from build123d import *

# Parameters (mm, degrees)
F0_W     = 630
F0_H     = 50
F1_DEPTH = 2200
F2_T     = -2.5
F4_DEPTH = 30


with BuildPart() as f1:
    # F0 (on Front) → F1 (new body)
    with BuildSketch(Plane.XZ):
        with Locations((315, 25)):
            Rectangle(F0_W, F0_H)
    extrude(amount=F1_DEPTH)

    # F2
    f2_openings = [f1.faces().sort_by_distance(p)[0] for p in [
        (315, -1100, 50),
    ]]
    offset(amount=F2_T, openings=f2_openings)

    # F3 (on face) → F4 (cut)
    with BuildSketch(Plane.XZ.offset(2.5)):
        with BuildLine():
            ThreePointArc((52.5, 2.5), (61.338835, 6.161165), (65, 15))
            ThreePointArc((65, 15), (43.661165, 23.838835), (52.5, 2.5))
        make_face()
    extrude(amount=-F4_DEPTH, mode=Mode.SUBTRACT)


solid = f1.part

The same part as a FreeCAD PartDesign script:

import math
import FreeCAD as App
import Part
import Sketcher
Q = App.Units.Quantity


def faces_at(feature, points):
    """Names of the faces that lie closest to the given points."""
    faces = feature.Shape.Faces
    near = lambda p: min(range(len(faces)), key=lambda i: faces[i].distToShape(Part.Vertex(*p))[0])
    return sorted({f"Face{near(p) + 1}" for p in points})

doc = App.newDocument("Part")
body = doc.addObject("PartDesign::Body", "Body")

sketch1 = doc.addObject("Sketcher::SketchObject", "Sketch")
body.addObject(sketch1)
sketch1.AttachmentSupport = (doc.XZ_Plane, [""])
sketch1.MapMode = "FlatFace"
sketch1.addGeometry([
    Part.LineSegment(App.Vector(0, 50, 0), App.Vector(0, 0, 0)),
    Part.LineSegment(App.Vector(0, 0, 0), App.Vector(630, 0, 0)),
    Part.LineSegment(App.Vector(630, 0, 0), App.Vector(630, 50, 0)),
    Part.LineSegment(App.Vector(630, 50, 0), App.Vector(0, 50, 0)),
], False)
sketch1.addConstraint([
    Sketcher.Constraint("Coincident", 0, 2, 1, 1),
    Sketcher.Constraint("Coincident", 1, 2, 2, 1),
    Sketcher.Constraint("Coincident", 2, 2, 3, 1),
    Sketcher.Constraint("Coincident", 3, 2, 0, 1),
    Sketcher.Constraint("Vertical", 0),
    Sketcher.Constraint("Horizontal", 1),
    Sketcher.Constraint("Vertical", 2),
    Sketcher.Constraint("Horizontal", 3),
    Sketcher.Constraint("Coincident", 0, 2, -1, 1),
    Sketcher.Constraint("DistanceX", 1, 1, 1, 2, Q("630 mm")),
    Sketcher.Constraint("DistanceY", 0, 2, 0, 1, Q("50 mm")),
])
pad1 = doc.addObject("PartDesign::Pad", "Pad")
body.addObject(pad1)
pad1.Profile = sketch1
pad1.Length = 2200
doc.recompute()

thickness = doc.addObject("PartDesign::Thickness", "Thickness")
body.addObject(thickness)
thickness.Base = (pad1, faces_at(pad1, [(315, -1100, 50)]))
thickness.Value = 2.5
thickness.Reversed = True
thickness.Join = "Arc"

sketch2 = doc.addObject("Sketcher::SketchObject", "Sketch001")
body.addObject(sketch2)
sketch2.AttachmentSupport = (doc.XZ_Plane, [""])
sketch2.MapMode = "FlatFace"
sketch2.AttachmentOffset = App.Placement(App.Vector(0, 0, 2.5), App.Rotation())
sketch2.addGeometry([
    Part.ArcOfCircle(Part.Circle(App.Vector(52.500001, 14.999999, 0), App.Vector(0, 0, 1), 12.499999), math.radians(-90.000004), math.radians(0.000004)),
    Part.ArcOfCircle(Part.Circle(App.Vector(52.5, 15, 0), App.Vector(0, 0, 1), 12.5), math.radians(-0.000001), math.radians(270.000001)),
], False)
sketch2.addConstraint([
    Sketcher.Constraint("Tangent", 0, 1, 1, 2),
    Sketcher.Constraint("Coincident", 1, 1, 0, 2),
    Sketcher.Constraint("Horizontal", 0, 3, 1, 1),
    Sketcher.Constraint("Vertical", 1, 3, 0, 1),
    Sketcher.Constraint("Radius", 0, Q("12.499999 mm")),
    Sketcher.Constraint("DistanceY", -1, 1, 0, 3, Q("14.999999 mm")),
    Sketcher.Constraint("DistanceX", -1, 1, 1, 1, Q("65 mm")),
])
pocket1 = doc.addObject("PartDesign::Pocket", "Pocket")
body.addObject(pocket1)
pocket1.Profile = sketch2
pocket1.Length = 30

doc.recompute()
